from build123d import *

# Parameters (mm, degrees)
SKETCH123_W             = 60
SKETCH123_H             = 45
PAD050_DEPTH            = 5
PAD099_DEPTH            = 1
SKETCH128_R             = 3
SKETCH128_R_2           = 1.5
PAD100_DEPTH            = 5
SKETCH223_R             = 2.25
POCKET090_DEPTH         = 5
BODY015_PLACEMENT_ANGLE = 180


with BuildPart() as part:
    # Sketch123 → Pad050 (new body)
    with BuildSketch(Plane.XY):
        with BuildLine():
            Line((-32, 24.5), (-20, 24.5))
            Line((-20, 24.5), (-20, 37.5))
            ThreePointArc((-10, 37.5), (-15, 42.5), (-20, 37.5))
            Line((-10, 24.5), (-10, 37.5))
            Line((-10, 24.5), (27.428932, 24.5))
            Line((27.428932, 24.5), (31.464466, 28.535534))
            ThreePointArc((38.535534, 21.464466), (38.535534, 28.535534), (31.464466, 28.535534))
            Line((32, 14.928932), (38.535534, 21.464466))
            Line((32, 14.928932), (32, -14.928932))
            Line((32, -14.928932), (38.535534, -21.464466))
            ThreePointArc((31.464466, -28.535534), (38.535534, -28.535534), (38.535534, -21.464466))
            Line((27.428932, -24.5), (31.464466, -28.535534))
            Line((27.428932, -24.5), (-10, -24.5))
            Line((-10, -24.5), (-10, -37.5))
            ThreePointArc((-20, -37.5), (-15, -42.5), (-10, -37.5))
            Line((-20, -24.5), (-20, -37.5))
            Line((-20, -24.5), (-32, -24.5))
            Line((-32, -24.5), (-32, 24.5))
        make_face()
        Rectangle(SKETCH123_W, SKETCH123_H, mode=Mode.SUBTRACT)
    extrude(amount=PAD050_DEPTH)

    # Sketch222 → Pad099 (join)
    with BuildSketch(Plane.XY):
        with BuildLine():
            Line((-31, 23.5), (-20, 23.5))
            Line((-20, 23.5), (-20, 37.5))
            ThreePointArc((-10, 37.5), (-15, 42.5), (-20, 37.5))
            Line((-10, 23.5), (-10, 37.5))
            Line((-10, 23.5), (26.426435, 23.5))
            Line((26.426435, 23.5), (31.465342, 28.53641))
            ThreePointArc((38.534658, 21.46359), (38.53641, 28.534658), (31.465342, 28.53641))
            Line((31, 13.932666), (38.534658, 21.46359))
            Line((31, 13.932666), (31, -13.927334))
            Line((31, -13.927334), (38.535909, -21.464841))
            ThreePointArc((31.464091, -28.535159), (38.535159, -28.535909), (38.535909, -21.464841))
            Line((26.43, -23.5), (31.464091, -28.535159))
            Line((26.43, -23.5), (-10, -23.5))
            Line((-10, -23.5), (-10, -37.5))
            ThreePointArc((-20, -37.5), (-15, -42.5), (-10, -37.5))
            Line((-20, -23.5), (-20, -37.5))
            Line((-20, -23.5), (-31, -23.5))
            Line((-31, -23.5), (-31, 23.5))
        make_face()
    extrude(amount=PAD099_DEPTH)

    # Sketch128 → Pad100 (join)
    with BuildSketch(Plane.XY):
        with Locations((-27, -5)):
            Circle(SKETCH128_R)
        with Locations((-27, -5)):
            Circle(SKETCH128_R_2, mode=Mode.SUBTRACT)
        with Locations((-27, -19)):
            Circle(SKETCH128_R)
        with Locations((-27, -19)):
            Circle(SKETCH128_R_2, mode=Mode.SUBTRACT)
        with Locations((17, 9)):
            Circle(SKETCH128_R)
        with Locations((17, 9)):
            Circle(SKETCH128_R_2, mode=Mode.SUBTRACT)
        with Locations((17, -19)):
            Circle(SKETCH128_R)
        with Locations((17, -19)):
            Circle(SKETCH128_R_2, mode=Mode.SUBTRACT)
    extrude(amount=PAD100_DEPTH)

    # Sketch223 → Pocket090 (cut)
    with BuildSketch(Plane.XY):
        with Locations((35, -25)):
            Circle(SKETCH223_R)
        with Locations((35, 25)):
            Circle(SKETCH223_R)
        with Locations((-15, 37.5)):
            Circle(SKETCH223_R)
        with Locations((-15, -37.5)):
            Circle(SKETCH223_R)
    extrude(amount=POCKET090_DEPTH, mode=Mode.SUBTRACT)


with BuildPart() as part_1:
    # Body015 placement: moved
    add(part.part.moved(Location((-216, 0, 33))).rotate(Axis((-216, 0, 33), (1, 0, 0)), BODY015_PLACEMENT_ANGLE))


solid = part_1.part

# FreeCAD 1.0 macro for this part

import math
import FreeCAD as App
import Part
import Sketcher
Q = App.Units.Quantity


def add_polygon(sketch, points):
    """Adds a closed chain of lines whose ends are joined by coincident constraints."""
    first, n = sketch.GeometryCount, len(points)
    for a, b in zip(points, points[1:] + points[:1]):
        sketch.addGeometry(Part.LineSegment(App.Vector(*a, 0), App.Vector(*b, 0)), False)
    for i in range(n):
        sketch.addConstraint(Sketcher.Constraint("Coincident", first + i, 2, first + (i + 1) % n, 1))

doc = App.newDocument("Part")
body = doc.addObject("PartDesign::Body", "Body")

sketch1 = doc.addObject("Sketcher::SketchObject", "Sketch")
body.addObject(sketch1)
sketch1.AttachmentSupport = (doc.XY_Plane, [""])
sketch1.MapMode = "FlatFace"
sketch1.addGeometry(Part.LineSegment(App.Vector(-20, 24, 0), App.Vector(-32, 24, 0)), False)
sketch1.addGeometry(Part.LineSegment(App.Vector(-32, 24, 0), App.Vector(-32, -24, 0)), False)
sketch1.addGeometry(Part.LineSegment(App.Vector(-32, -24, 0), App.Vector(-20, -24, 0)), False)
sketch1.addGeometry(Part.LineSegment(App.Vector(-20, -24, 0), App.Vector(-20, -38, 0)), False)
sketch1.addGeometry(Part.ArcOfCircle(Part.Circle(App.Vector(-15, -38, 0), App.Vector(0, 0, 1), 5), math.radians(180), math.radians(360)), False)
sketch1.addGeometry(Part.LineSegment(App.Vector(-10, -38, 0), App.Vector(-10, -24, 0)), False)
sketch1.addGeometry(Part.LineSegment(App.Vector(-10, -24, 0), App.Vector(27, -24, 0)), False)
sketch1.addGeometry(Part.LineSegment(App.Vector(27, -24, 0), App.Vector(31, -29, 0)), False)
sketch1.addGeometry(Part.ArcOfCircle(Part.Circle(App.Vector(35, -25, 0), App.Vector(0, 0, 1), 5), math.radians(-135), math.radians(45)), False)
sketch1.addGeometry(Part.LineSegment(App.Vector(39, -21, 0), App.Vector(32, -15, 0)), False)
sketch1.addGeometry(Part.LineSegment(App.Vector(32, -15, 0), App.Vector(32, 15, 0)), False)
sketch1.addGeometry(Part.LineSegment(App.Vector(32, 15, 0), App.Vector(39, 21, 0)), False)
sketch1.addGeometry(Part.ArcOfCircle(Part.Circle(App.Vector(35, 25, 0), App.Vector(0, 0, 1), 5), math.radians(-45), math.radians(135)), False)
sketch1.addGeometry(Part.LineSegment(App.Vector(31, 29, 0), App.Vector(27, 24, 0)), False)
sketch1.addGeometry(Part.LineSegment(App.Vector(27, 24, 0), App.Vector(-10, 24, 0)), False)
sketch1.addGeometry(Part.LineSegment(App.Vector(-10, 24, 0), App.Vector(-10, 38, 0)), False)
sketch1.addGeometry(Part.ArcOfCircle(Part.Circle(App.Vector(-15, 38, 0), App.Vector(0, 0, 1), 5), math.radians(0), math.radians(180)), False)
sketch1.addGeometry(Part.LineSegment(App.Vector(-20, 38, 0), App.Vector(-20, 24, 0)), False)
add_polygon(sketch1, [(-30, -22), (-30, 22), (30, 22), (30, -22)])
sketch1.addConstraint([
    Sketcher.Constraint("Coincident", 0, 2, 1, 1),
    Sketcher.Constraint("Coincident", 1, 2, 2, 1),
    Sketcher.Constraint("Coincident", 2, 2, 3, 1),
    Sketcher.Constraint("Tangent", 3, 2, 4, 1),
    Sketcher.Constraint("Tangent", 4, 2, 5, 1),
    Sketcher.Constraint("Coincident", 5, 2, 6, 1),
    Sketcher.Constraint("Coincident", 6, 2, 7, 1),
    Sketcher.Constraint("Tangent", 7, 2, 8, 1),
    Sketcher.Constraint("Tangent", 8, 2, 9, 1),
    Sketcher.Constraint("Coincident", 9, 2, 10, 1),
    Sketcher.Constraint("Coincident", 10, 2, 11, 1),
    Sketcher.Constraint("Tangent", 11, 2, 12, 1),
    Sketcher.Constraint("Tangent", 12, 2, 13, 1),
    Sketcher.Constraint("Coincident", 13, 2, 14, 1),
    Sketcher.Constraint("Coincident", 14, 2, 15, 1),
    Sketcher.Constraint("Tangent", 15, 2, 16, 1),
    Sketcher.Constraint("Tangent", 16, 2, 17, 1),
    Sketcher.Constraint("Coincident", 17, 2, 0, 1),
    Sketcher.Constraint("Horizontal", 0),
    Sketcher.Constraint("Vertical", 1),
    Sketcher.Constraint("Horizontal", 2),
    Sketcher.Constraint("Vertical", 3),
    Sketcher.Constraint("Vertical", 5),
    Sketcher.Constraint("Horizontal", 6),
    Sketcher.Constraint("Vertical", 10),
    Sketcher.Constraint("Horizontal", 14),
    Sketcher.Constraint("Vertical", 15),
    Sketcher.Constraint("Vertical", 17),
    Sketcher.Constraint("Vertical", 18),
    Sketcher.Constraint("Horizontal", 19),
    Sketcher.Constraint("Vertical", 20),
    Sketcher.Constraint("Horizontal", 21),
    Sketcher.Constraint("Equal", 4, 8),
    Sketcher.Constraint("Equal", 8, 12),
    Sketcher.Constraint("Equal", 12, 16),
    Sketcher.Constraint("Symmetric", 18, 2, 20, 2, -1, 1),
    Sketcher.Constraint("Symmetric", 8, 3, 12, 3, -1),
    Sketcher.Constraint("Symmetric", 4, 3, 16, 3, -1),
    Sketcher.Constraint("Symmetric", 6, 2, 13, 2, -1),
    Sketcher.Constraint("Parallel", 7, 9),
    Sketcher.Constraint("Perpendicular", 9, 11),
    Sketcher.Constraint("Parallel", 11, 13),
    Sketcher.Constraint("Horizontal", 2, 2, 5, 2),
    Sketcher.Constraint("Horizontal", 0, 2, 13, 2),
    Sketcher.Constraint("Radius", 4, Q("5 mm")),
    Sketcher.Constraint("DistanceX", 0, 2, 0, 1, Q("12 mm")),
    Sketcher.Constraint("DistanceX", 19, 1, 19, 2, Q("60 mm")),
    Sketcher.Constraint("DistanceY", 1, 2, 1, 1, Q("49 mm")),
    Sketcher.Constraint("DistanceY", 3, 2, 3, 1, Q("13 mm")),
    Sketcher.Constraint("DistanceY", 18, 1, 18, 2, Q("45 mm")),
    Sketcher.Constraint("DistanceX", 4, 3, -1, 1, Q("15 mm")),
    Sketcher.Constraint("DistanceX", -1, 1, 8, 3, Q("35 mm")),
    Sketcher.Constraint("DistanceY", 8, 3, -1, 1, Q("25 mm")),
    Sketcher.Constraint("DistanceX", -1, 1, 9, 2, Q("32 mm")),
])
pad1 = doc.addObject("PartDesign::Pad", "Pad")
body.addObject(pad1)
pad1.Profile = sketch1
pad1.Length = 5

sketch2 = doc.addObject("Sketcher::SketchObject", "Sketch001")
body.addObject(sketch2)
sketch2.AttachmentSupport = (doc.XY_Plane, [""])
sketch2.MapMode = "FlatFace"
sketch2.addGeometry([
    Part.LineSegment(App.Vector(-20, 24, 0), App.Vector(-31, 24, 0)),
    Part.LineSegment(App.Vector(-31, 24, 0), App.Vector(-31, -24, 0)),
    Part.LineSegment(App.Vector(-31, -24, 0), App.Vector(-20, -24, 0)),
    Part.LineSegment(App.Vector(-20, -24, 0), App.Vector(-20, -38, 0)),
    Part.ArcOfCircle(Part.Circle(App.Vector(-15, -38, 0), App.Vector(0, 0, 1), 5), math.radians(180), math.radians(360)),
    Part.LineSegment(App.Vector(-10, -38, 0), App.Vector(-10, -24, 0)),
    Part.LineSegment(App.Vector(-10, -24, 0), App.Vector(26, -24, 0)),
    Part.LineSegment(App.Vector(26, -24, 0), App.Vector(31, -29, 0)),
    Part.ArcOfCircle(Part.Circle(App.Vector(35, -25, 0), App.Vector(0, 0, 1), 5), math.radians(-135), math.radians(45)),
    Part.LineSegment(App.Vector(39, -21, 0), App.Vector(31, -14, 0)),
    Part.LineSegment(App.Vector(31, -14, 0), App.Vector(31, 14, 0)),
    Part.LineSegment(App.Vector(31, 14, 0), App.Vector(39, 21, 0)),
    Part.ArcOfCircle(Part.Circle(App.Vector(35, 25, 0), App.Vector(0, 0, 1), 5), math.radians(-45), math.radians(135)),
    Part.LineSegment(App.Vector(31, 29, 0), App.Vector(26, 24, 0)),
    Part.LineSegment(App.Vector(26, 24, 0), App.Vector(-10, 24, 0)),
    Part.LineSegment(App.Vector(-10, 24, 0), App.Vector(-10, 38, 0)),
    Part.ArcOfCircle(Part.Circle(App.Vector(-15, 38, 0), App.Vector(0, 0, 1), 5), math.radians(0), math.radians(180)),
    Part.LineSegment(App.Vector(-20, 38, 0), App.Vector(-20, 24, 0)),
], False)
sketch2.addConstraint([
    Sketcher.Constraint("Coincident", 0, 2, 1, 1),
    Sketcher.Constraint("Coincident", 1, 2, 2, 1),
    Sketcher.Constraint("Coincident", 2, 2, 3, 1),
    Sketcher.Constraint("Tangent", 3, 2, 4, 1),
    Sketcher.Constraint("Tangent", 4, 2, 5, 1),
    Sketcher.Constraint("Coincident", 5, 2, 6, 1),
    Sketcher.Constraint("Coincident", 6, 2, 7, 1),
    Sketcher.Constraint("Tangent", 7, 2, 8, 1),
    Sketcher.Constraint("Tangent", 8, 2, 9, 1),
    Sketcher.Constraint("Coincident", 9, 2, 10, 1),
    Sketcher.Constraint("Coincident", 10, 2, 11, 1),
    Sketcher.Constraint("Tangent", 11, 2, 12, 1),
    Sketcher.Constraint("Tangent", 12, 2, 13, 1),
    Sketcher.Constraint("Coincident", 13, 2, 14, 1),
    Sketcher.Constraint("Coincident", 14, 2, 15, 1),
    Sketcher.Constraint("Tangent", 15, 2, 16, 1),
    Sketcher.Constraint("Tangent", 16, 2, 17, 1),
    Sketcher.Constraint("Coincident", 17, 2, 0, 1),
    Sketcher.Constraint("Horizontal", 0),
    Sketcher.Constraint("Vertical", 1),
    Sketcher.Constraint("Horizontal", 2),
    Sketcher.Constraint("Vertical", 3),
    Sketcher.Constraint("Vertical", 5),
    Sketcher.Constraint("Horizontal", 6),
    Sketcher.Constraint("Vertical", 10),
    Sketcher.Constraint("Horizontal", 14),
    Sketcher.Constraint("Vertical", 15),
    Sketcher.Constraint("Vertical", 17),
    Sketcher.Constraint("Equal", 4, 8),
    Sketcher.Constraint("Equal", 8, 12),
    Sketcher.Constraint("Equal", 12, 16),
    Sketcher.Constraint("Symmetric", 8, 3, 12, 3, -1),
    Sketcher.Constraint("Symmetric", 4, 3, 16, 3, -1),
    Sketcher.Constraint("Parallel", 7, 9),
    Sketcher.Constraint("Parallel", 11, 13),
    Sketcher.Constraint("Horizontal", 2, 2, 5, 2),
    Sketcher.Constraint("Horizontal", 0, 2, 13, 2),
    Sketcher.Constraint("Equal", 5, 15),
    Sketcher.Constraint("Radius", 4, Q("5 mm")),
    Sketcher.Constraint("DistanceX", 0, 2, 0, 1, Q("11 mm")),
    Sketcher.Constraint("DistanceY", 1, 2, 1, 1, Q("47 mm")),
    Sketcher.Constraint("DistanceY", 3, 2, 3, 1, Q("14 mm")),
    Sketcher.Constraint("DistanceX", 4, 3, -1, 1, Q("15 mm")),
    Sketcher.Constraint("DistanceX", -1, 1, 8, 3, Q("35 mm")),
    Sketcher.Constraint("DistanceY", 8, 3, -1, 1, Q("25 mm")),
    Sketcher.Constraint("DistanceX", -1, 1, 9, 2, Q("31 mm")),
    Sketcher.Constraint("DistanceX", 6, 1, 6, 2, Q("36.43 mm")),
    Sketcher.Constraint("DistanceY", 10, 1, 10, 2, Q("27.86 mm")),
])
pad2 = doc.addObject("PartDesign::Pad", "Pad001")
body.addObject(pad2)
pad2.Profile = sketch2
pad2.Length = 1

sketch3 = doc.addObject("Sketcher::SketchObject", "Sketch002")
body.addObject(sketch3)
sketch3.AttachmentSupport = (doc.XY_Plane, [""])
sketch3.MapMode = "FlatFace"
sketch3.addGeometry([
    Part.Circle(App.Vector(-27, -5, 0), App.Vector(0, 0, 1), 3),
    Part.Circle(App.Vector(-27, -5, 0), App.Vector(0, 0, 1), 1.5),
    Part.Circle(App.Vector(-27, -19, 0), App.Vector(0, 0, 1), 3),
    Part.Circle(App.Vector(-27, -19, 0), App.Vector(0, 0, 1), 1.5),
    Part.Circle(App.Vector(17, 9, 0), App.Vector(0, 0, 1), 3),
    Part.Circle(App.Vector(17, 9, 0), App.Vector(0, 0, 1), 1.5),
    Part.Circle(App.Vector(17, -19, 0), App.Vector(0, 0, 1), 3),
    Part.Circle(App.Vector(17, -19, 0), App.Vector(0, 0, 1), 1.5),
], False)
sketch3.addConstraint([
    Sketcher.Constraint("Coincident", 1, 3, 0, 3),
    Sketcher.Constraint("Coincident", 3, 3, 2, 3),
    Sketcher.Constraint("Coincident", 5, 3, 4, 3),
    Sketcher.Constraint("Coincident", 7, 3, 6, 3),
    Sketcher.Constraint("Equal", 0, 2),
    Sketcher.Constraint("Equal", 1, 3),
    Sketcher.Constraint("Equal", 2, 4),
    Sketcher.Constraint("Equal", 3, 5),
    Sketcher.Constraint("Equal", 4, 6),
    Sketcher.Constraint("Equal", 5, 7),
    Sketcher.Constraint("Horizontal", 3, 3, 6, 3),
    Sketcher.Constraint("Vertical", 1, 3, 2, 3),
    Sketcher.Constraint("Vertical", 5, 3, 6, 3),
    Sketcher.Constraint("Diameter", 0, Q("6 mm")),
    Sketcher.Constraint("Diameter", 1, Q("3 mm")),
    Sketcher.Constraint("DistanceX", 0, 3, -1, 1, Q("27 mm")),
    Sketcher.Constraint("DistanceY", 0, 3, -1, 1, Q("5 mm")),
    Sketcher.Constraint("DistanceY", 2, 3, -1, 1, Q("19 mm")),
    Sketcher.Constraint("DistanceX", -1, 1, 4, 3, Q("17 mm")),
    Sketcher.Constraint("DistanceY", -1, 1, 4, 3, Q("9 mm")),
])
pad3 = doc.addObject("PartDesign::Pad", "Pad002")
body.addObject(pad3)
pad3.Profile = sketch3
pad3.Length = 5

sketch4 = doc.addObject("Sketcher::SketchObject", "Sketch003")
body.addObject(sketch4)
sketch4.AttachmentSupport = (doc.XY_Plane, [""])
sketch4.MapMode = "FlatFace"
sketch4.addGeometry([
    Part.Circle(App.Vector(35, -25, 0), App.Vector(0, 0, 1), 2.2),
    Part.Circle(App.Vector(35, 25, 0), App.Vector(0, 0, 1), 2.2),
    Part.Circle(App.Vector(-15, 37.5, 0), App.Vector(0, 0, 1), 2.2),
    Part.Circle(App.Vector(-15, -37.5, 0), App.Vector(0, 0, 1), 2.2),
], False)
sketch4.addConstraint([
    Sketcher.Constraint("Equal", 0, 1),
    Sketcher.Constraint("Equal", 1, 2),
    Sketcher.Constraint("Equal", 2, 3),
    Sketcher.Constraint("Symmetric", 0, 3, 1, 3, -1),
    Sketcher.Constraint("Symmetric", 2, 3, 3, 3, -1),
    Sketcher.Constraint("Diameter", 0, Q("4.5 mm")),
    Sketcher.Constraint("DistanceX", -1, 1, 0, 3, Q("35 mm")),
    Sketcher.Constraint("DistanceY", 0, 3, -1, 1, Q("25 mm")),
    Sketcher.Constraint("DistanceX", 2, 3, -1, 1, Q("15 mm")),
    Sketcher.Constraint("DistanceY", 3, 3, 2, 3, Q("75 mm")),
])
pocket1 = doc.addObject("PartDesign::Pocket", "Pocket")
body.addObject(pocket1)
pocket1.Profile = sketch4
pocket1.Length = 5
pocket1.Reversed = True
body2 = doc.addObject("PartDesign::Body", "Body001")
doc.recompute()

body.Placement = App.Placement(App.Vector(-216, 0, 33), App.Rotation(App.Vector(1, 0, 0), 180))
boolean = doc.addObject("PartDesign::Boolean", "Boolean")
body2.addObject(boolean)
boolean.Type = "Fuse"
boolean.addObjects([body])

doc.recompute()
